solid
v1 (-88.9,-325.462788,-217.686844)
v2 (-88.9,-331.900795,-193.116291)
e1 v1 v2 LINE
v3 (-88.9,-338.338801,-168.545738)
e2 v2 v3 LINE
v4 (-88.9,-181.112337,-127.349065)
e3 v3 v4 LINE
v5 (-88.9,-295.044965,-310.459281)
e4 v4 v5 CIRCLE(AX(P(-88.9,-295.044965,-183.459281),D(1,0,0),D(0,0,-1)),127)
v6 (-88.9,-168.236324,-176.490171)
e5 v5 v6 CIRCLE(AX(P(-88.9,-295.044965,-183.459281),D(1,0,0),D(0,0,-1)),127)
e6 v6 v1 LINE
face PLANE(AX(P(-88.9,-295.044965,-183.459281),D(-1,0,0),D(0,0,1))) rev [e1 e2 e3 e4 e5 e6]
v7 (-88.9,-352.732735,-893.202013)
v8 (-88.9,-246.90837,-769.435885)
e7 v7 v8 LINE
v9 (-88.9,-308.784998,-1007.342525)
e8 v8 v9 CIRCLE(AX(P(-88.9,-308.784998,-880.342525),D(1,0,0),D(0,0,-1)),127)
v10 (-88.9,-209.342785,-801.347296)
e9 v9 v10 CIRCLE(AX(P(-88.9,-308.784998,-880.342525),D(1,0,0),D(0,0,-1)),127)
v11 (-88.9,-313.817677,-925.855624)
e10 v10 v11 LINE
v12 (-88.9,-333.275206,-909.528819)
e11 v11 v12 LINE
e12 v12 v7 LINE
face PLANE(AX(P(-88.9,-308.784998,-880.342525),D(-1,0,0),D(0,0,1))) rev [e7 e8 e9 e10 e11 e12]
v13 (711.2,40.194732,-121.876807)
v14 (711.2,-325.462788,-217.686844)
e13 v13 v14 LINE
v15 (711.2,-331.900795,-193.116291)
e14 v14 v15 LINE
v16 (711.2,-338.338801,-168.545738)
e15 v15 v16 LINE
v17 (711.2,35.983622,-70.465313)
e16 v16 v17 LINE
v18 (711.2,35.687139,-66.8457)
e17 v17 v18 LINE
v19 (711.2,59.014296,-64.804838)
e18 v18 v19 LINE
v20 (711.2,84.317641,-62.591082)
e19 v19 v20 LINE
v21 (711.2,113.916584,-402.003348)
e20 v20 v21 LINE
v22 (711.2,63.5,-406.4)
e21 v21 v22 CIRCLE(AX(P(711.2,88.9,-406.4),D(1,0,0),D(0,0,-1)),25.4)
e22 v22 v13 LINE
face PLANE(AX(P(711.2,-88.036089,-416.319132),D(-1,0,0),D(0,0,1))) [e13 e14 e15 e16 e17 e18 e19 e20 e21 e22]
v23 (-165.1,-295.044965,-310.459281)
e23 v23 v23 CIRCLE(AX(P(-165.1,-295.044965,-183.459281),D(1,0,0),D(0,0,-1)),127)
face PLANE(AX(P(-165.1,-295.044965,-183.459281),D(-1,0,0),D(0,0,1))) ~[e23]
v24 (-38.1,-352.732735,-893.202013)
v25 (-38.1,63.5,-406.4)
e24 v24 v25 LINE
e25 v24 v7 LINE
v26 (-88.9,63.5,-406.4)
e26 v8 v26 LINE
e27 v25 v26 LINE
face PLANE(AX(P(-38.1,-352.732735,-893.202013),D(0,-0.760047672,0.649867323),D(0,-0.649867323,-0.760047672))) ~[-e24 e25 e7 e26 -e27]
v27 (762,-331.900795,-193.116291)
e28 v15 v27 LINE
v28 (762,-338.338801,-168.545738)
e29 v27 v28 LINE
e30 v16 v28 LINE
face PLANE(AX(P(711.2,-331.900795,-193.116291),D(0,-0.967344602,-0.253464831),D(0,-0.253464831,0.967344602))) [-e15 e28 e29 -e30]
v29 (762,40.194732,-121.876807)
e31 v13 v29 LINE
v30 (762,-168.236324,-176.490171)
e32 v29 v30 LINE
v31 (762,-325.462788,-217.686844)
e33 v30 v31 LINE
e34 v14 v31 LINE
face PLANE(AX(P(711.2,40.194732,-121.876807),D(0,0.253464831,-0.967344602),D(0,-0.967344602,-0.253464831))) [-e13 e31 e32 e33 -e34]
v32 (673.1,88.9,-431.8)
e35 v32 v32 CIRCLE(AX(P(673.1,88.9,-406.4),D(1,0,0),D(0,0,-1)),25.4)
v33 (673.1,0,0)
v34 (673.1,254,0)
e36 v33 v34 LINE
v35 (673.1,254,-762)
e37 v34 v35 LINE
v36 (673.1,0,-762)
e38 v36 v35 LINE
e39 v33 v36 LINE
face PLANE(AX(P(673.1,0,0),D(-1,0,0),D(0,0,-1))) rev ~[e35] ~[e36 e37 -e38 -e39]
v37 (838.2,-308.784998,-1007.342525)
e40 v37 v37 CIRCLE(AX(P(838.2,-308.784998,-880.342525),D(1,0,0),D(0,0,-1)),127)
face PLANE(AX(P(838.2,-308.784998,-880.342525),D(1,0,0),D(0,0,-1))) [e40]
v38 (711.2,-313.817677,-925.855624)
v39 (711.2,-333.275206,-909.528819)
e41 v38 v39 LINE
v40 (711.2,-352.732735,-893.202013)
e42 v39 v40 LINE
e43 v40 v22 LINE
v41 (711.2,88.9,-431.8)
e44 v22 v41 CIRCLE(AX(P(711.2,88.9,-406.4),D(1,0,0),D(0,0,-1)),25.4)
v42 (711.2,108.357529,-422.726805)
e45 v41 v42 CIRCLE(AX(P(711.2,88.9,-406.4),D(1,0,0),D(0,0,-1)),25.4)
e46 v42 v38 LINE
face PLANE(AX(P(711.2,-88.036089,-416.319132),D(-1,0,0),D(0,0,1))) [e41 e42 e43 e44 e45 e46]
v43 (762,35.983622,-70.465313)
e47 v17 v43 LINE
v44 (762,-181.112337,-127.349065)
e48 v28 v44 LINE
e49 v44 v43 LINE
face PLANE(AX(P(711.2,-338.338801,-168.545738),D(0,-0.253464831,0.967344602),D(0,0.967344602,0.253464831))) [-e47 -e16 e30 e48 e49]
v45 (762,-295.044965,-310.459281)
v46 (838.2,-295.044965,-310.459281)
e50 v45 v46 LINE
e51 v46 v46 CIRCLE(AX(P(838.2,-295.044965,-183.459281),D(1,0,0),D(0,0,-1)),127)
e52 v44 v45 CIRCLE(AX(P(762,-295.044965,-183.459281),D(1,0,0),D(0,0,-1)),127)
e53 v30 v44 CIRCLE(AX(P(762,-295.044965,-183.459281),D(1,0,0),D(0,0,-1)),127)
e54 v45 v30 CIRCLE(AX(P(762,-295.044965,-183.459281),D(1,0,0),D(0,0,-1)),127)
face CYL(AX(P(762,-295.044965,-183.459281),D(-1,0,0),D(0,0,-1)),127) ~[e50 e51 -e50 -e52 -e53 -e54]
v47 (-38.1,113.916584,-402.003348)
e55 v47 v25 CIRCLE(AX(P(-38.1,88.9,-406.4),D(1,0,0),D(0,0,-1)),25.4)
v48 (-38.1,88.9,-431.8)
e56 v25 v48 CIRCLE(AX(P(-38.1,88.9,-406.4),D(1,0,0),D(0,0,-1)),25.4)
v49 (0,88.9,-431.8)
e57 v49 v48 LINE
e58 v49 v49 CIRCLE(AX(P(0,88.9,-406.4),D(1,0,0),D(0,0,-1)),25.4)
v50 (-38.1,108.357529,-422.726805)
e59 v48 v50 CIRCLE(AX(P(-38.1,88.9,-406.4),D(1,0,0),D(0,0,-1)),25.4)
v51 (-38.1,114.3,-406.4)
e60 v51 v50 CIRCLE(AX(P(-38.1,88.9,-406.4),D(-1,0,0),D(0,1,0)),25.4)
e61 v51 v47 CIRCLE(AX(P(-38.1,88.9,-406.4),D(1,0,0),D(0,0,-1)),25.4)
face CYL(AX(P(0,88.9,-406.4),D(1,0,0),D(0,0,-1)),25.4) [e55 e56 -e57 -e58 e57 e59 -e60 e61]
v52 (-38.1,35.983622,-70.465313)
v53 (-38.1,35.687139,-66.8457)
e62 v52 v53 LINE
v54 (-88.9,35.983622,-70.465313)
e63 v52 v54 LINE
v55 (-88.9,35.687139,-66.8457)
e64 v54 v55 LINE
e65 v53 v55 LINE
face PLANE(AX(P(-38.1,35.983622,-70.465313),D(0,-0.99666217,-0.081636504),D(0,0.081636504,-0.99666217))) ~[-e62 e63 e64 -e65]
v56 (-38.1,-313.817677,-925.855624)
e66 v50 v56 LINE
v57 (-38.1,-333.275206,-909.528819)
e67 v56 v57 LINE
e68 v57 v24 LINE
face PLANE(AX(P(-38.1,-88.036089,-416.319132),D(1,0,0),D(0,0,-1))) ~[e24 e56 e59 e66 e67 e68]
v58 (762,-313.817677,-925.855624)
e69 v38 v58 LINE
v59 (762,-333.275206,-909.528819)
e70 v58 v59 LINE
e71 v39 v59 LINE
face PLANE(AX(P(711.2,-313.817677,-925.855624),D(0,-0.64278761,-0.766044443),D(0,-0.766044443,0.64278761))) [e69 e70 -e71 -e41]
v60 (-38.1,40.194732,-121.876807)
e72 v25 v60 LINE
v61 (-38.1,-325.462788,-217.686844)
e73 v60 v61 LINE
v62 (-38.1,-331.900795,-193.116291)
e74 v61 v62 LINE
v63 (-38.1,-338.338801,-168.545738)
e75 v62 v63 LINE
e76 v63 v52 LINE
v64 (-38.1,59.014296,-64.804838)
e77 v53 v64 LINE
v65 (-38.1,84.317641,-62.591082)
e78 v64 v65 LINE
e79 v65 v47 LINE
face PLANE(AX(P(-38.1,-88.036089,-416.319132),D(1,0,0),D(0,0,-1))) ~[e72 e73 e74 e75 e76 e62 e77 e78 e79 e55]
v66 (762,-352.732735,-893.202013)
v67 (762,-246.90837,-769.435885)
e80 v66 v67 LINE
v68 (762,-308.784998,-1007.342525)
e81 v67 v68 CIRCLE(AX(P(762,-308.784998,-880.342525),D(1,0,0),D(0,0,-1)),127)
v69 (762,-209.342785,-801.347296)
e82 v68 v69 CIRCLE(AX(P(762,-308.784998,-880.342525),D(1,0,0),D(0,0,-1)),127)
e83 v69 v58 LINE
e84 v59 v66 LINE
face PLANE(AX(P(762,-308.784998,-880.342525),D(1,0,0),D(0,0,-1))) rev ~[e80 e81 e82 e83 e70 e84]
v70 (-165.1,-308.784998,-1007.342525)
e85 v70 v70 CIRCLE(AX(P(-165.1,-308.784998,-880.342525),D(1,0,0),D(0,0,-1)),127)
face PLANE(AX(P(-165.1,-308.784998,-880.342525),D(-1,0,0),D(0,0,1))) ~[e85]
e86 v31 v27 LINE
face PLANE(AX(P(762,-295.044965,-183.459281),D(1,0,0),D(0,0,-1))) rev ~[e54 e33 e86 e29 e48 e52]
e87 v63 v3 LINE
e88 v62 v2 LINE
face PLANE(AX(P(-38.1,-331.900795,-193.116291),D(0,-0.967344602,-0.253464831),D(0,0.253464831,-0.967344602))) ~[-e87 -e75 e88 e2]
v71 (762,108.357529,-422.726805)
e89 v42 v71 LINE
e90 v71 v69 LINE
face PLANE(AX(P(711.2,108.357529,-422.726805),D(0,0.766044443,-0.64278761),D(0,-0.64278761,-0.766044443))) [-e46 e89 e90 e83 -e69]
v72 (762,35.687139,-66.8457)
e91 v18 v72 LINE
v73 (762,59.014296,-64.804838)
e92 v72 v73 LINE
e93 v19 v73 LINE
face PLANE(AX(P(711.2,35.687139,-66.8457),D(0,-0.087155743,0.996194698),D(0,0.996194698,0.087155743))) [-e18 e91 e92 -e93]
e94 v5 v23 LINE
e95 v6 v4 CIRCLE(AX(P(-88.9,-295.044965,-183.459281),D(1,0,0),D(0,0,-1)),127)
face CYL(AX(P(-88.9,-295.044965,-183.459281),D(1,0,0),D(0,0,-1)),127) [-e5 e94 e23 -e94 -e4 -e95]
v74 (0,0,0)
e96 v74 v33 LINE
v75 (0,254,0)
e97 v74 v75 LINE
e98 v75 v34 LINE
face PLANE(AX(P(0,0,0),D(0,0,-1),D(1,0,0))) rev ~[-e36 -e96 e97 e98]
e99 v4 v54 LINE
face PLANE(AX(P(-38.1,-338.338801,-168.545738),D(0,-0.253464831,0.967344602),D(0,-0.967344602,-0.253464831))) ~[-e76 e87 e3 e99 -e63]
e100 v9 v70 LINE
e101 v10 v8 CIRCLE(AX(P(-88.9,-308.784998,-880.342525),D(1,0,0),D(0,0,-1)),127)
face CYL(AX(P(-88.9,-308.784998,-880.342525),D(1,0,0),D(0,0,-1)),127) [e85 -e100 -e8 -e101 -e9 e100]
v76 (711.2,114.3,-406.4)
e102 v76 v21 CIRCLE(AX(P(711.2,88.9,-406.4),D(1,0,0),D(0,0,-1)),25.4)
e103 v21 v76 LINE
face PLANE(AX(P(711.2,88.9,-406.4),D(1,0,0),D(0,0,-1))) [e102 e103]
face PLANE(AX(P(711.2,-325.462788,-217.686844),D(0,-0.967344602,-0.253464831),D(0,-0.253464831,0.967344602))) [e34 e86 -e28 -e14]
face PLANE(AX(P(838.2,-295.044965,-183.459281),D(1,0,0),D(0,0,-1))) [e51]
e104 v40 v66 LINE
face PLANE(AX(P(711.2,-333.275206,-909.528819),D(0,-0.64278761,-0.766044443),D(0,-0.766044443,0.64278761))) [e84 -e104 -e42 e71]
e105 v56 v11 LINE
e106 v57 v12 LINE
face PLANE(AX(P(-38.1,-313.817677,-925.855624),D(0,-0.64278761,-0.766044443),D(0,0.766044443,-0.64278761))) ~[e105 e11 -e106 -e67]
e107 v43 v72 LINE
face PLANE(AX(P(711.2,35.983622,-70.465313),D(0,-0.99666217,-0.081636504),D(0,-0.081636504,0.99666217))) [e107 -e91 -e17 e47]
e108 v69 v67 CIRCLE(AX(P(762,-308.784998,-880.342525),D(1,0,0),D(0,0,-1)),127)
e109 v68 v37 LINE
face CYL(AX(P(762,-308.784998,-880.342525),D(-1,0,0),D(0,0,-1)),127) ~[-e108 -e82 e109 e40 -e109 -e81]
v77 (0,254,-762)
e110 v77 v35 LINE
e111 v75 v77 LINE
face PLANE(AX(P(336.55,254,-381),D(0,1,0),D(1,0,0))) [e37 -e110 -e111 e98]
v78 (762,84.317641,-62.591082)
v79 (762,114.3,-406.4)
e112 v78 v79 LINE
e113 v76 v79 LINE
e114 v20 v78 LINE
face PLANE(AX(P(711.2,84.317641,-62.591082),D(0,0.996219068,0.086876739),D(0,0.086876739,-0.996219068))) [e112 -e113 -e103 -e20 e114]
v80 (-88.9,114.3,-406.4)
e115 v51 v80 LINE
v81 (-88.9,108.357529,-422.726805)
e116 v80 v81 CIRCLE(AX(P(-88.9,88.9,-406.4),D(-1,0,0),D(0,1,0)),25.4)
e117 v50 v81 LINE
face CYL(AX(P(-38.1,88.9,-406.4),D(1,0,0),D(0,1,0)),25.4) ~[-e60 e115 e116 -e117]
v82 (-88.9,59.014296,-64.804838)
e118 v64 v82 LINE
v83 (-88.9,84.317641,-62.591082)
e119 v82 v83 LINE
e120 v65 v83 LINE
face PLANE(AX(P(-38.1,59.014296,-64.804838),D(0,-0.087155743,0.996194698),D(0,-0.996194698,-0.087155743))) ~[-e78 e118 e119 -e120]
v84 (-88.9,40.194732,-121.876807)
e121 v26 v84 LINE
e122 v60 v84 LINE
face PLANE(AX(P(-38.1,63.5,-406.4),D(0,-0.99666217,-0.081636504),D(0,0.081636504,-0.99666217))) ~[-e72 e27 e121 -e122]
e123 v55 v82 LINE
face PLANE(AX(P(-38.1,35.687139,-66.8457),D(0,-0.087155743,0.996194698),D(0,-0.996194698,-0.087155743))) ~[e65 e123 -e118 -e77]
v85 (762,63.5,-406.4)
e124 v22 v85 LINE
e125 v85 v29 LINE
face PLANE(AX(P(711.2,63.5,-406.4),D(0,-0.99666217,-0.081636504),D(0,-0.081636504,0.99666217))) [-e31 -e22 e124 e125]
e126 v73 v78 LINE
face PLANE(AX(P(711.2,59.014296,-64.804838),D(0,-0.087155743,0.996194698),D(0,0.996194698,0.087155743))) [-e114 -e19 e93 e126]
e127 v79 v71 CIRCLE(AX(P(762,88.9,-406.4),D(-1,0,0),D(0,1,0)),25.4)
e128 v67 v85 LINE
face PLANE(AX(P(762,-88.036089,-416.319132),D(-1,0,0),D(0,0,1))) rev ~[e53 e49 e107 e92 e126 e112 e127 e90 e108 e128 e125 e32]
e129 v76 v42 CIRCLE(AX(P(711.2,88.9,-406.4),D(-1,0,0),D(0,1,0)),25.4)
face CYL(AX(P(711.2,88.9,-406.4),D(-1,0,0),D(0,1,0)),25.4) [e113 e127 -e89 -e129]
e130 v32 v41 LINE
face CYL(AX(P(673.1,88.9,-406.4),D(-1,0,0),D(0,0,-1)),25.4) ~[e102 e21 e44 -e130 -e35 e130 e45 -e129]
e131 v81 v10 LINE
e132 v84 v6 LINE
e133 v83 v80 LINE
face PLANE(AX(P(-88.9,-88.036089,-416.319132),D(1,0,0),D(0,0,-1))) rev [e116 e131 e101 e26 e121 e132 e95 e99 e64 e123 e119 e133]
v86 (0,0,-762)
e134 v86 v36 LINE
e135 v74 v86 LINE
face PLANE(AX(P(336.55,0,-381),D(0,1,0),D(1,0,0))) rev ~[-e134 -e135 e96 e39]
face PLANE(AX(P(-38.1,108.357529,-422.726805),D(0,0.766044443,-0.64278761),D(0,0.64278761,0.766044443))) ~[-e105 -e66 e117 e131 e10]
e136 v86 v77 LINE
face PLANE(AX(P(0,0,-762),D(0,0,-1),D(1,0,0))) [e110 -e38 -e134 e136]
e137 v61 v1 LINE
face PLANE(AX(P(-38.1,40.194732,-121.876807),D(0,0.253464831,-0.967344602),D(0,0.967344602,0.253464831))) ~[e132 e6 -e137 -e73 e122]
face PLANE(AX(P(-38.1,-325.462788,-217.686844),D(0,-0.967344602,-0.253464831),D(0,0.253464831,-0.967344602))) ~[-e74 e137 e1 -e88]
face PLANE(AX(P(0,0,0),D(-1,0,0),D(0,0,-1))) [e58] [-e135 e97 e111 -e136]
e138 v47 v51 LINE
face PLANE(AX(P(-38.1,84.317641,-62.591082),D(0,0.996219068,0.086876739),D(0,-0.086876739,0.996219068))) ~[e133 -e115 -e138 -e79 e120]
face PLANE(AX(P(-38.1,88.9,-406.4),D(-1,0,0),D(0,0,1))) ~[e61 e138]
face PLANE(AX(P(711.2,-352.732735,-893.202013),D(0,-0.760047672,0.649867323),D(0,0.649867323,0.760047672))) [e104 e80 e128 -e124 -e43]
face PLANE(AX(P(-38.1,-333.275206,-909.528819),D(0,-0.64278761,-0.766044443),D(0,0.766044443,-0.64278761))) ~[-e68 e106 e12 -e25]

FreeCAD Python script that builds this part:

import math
import FreeCAD as App
import Part
import Sketcher
from FreeCAD import Vector
Q = App.Units.Quantity


def add_polygon(sketch, points):
    """Adds a closed chain of lines whose ends are joined by coincident constraints."""
    first, n = sketch.GeometryCount, len(points)
    for a, b in zip(points, points[1:] + points[:1]):
        sketch.addGeometry(Part.LineSegment(App.Vector(*a, 0), App.Vector(*b, 0)), False)
    for i in range(n):
        sketch.addConstraint(Sketcher.Constraint("Coincident", first + i, 2, first + (i + 1) % n, 1))

doc = App.newDocument("Part")
body = doc.addObject("PartDesign::Body", "Body")

# Sketch on XZ plane
sketch1 = body.newObject("Sketcher::SketchObject", "Sketch")
sketch1.AttachmentSupport = (doc.getObject("XZ_Plane"), [""])
sketch1.MapMode = "FlatFace"
add_polygon(sketch1, [(0, -762), (0, 0), (673, 0), (673, -762)])  # lines 0-3
sketch1.addConstraint(Sketcher.Constraint("Vertical", 0))
sketch1.addConstraint(Sketcher.Constraint("Horizontal", 1))
sketch1.addConstraint(Sketcher.Constraint("Vertical", 2))
sketch1.addConstraint(Sketcher.Constraint("Horizontal", 3))
sketch1.addConstraint(Sketcher.Constraint("Coincident", 0, 2, -1, 1))
sketch1.addConstraint(Sketcher.Constraint("DistanceY", 0, 1, 0, 2, Q("30 in")))
sketch1.addConstraint(Sketcher.Constraint("DistanceX", 1, 1, 1, 2, Q("26.5 in")))
pad1 = body.newObject("PartDesign::Pad", "Pad")
pad1.Profile = sketch1
pad1.Length = Q("10 in")
pad1.Reversed = True

# Sketch on YZ plane
sketch2 = body.newObject("Sketcher::SketchObject", "Sketch001")
sketch2.AttachmentSupport = (doc.getObject("YZ_Plane"), [""])
sketch2.MapMode = "FlatFace"
sketch2.AttachmentOffset = App.Placement(Vector(0, 0, 26.5 * 25.4), App.Rotation())
sketch2.addGeometry(Part.Circle(Vector(89, -406, 0), Vector(0, 0, 1), 25), False)
sketch2.addConstraint(Sketcher.Constraint("Diameter", 0, Q("2 in")))
sketch2.addConstraint(Sketcher.Constraint("DistanceY", 0, 3, -1, 1, Q("16 in")))
sketch2.addConstraint(Sketcher.Constraint("DistanceX", -1, 1, 0, 3, Q("3.5 in")))
pad2 = body.newObject("PartDesign::Pad", "Pad001")
pad2.Profile = sketch2
pad2.Length = Q("1.5 in")

# Sketch on YZ plane
sketch3 = body.newObject("Sketcher::SketchObject", "Sketch002")
sketch3.AttachmentSupport = (doc.getObject("YZ_Plane"), [""])
sketch3.MapMode = "FlatFace"
sketch3.AttachmentOffset = App.Placement(Vector(0, 0, 28 * 25.4), App.Rotation())
sketch3.addGeometry(Part.LineSegment(Vector(-313.817677, -925.855624, 0), Vector(108.357529, -422.726805, 0)), False)
sketch3.addGeometry(Part.ArcOfCircle(Part.Circle(Vector(88.9, -406.4, 0), Vector(0, 0, 1), 25.4), math.radians(-40), math.radians(0)), False)
sketch3.addGeometry(Part.LineSegment(Vector(114.3, -406.4, 0), Vector(84.317641, -62.591082, 0)), False)
sketch3.addGeometry(Part.LineSegment(Vector(84.317641, -62.591082, 0), Vector(59.014296, -64.804838, 0)), False)
sketch3.addGeometry(Part.LineSegment(Vector(59.014296, -64.804838, 0), Vector(35.687139, -66.8457, 0)), False)
sketch3.addGeometry(Part.LineSegment(Vector(35.687139, -66.8457, 0), Vector(35.983622, -70.465313, 0)), False)
sketch3.addGeometry(Part.LineSegment(Vector(35.983622, -70.465313, 0), Vector(-338.338801, -168.545738, 0)), False)
sketch3.addGeometry(Part.LineSegment(Vector(-338.338801, -168.545738, 0), Vector(-331.900795, -193.116291, 0)), False)
sketch3.addGeometry(Part.LineSegment(Vector(-331.900795, -193.116291, 0), Vector(-325.462788, -217.686844, 0)), False)
sketch3.addGeometry(Part.LineSegment(Vector(-325.462788, -217.686844, 0), Vector(40.194732, -121.876807, 0)), False)
sketch3.addGeometry(Part.LineSegment(Vector(40.194732, -121.876807, 0), Vector(63.5, -406.4, 0)), False)
sketch3.addGeometry(Part.LineSegment(Vector(63.5, -406.4, 0), Vector(-352.732735, -893.202013, 0)), False)
sketch3.addGeometry(Part.LineSegment(Vector(-352.732735, -893.202013, 0), Vector(-333.275206, -909.528819, 0)), False)
sketch3.addGeometry(Part.LineSegment(Vector(-333.275206, -909.528819, 0), Vector(-313.817677, -925.855624, 0)), False)
sketch3.addConstraint(Sketcher.Constraint("Coincident", 0, 2, 1, 1))
sketch3.addConstraint(Sketcher.Constraint("Coincident", 1, 2, 2, 1))
sketch3.addConstraint(Sketcher.Constraint("Coincident", 2, 2, 3, 1))
sketch3.addConstraint(Sketcher.Constraint("Coincident", 3, 2, 4, 1))
sketch3.addConstraint(Sketcher.Constraint("Coincident", 4, 2, 5, 1))
sketch3.addConstraint(Sketcher.Constraint("Coincident", 5, 2, 6, 1))
sketch3.addConstraint(Sketcher.Constraint("Coincident", 6, 2, 7, 1))
sketch3.addConstraint(Sketcher.Constraint("Coincident", 7, 2, 8, 1))
sketch3.addConstraint(Sketcher.Constraint("Coincident", 8, 2, 9, 1))
sketch3.addConstraint(Sketcher.Constraint("Coincident", 9, 2, 10, 1))
sketch3.addConstraint(Sketcher.Constraint("Coincident", 10, 2, 11, 1))
sketch3.addConstraint(Sketcher.Constraint("Coincident", 11, 2, 12, 1))
sketch3.addConstraint(Sketcher.Constraint("Coincident", 12, 2, 13, 1))
sketch3.addConstraint(Sketcher.Constraint("Coincident", 13, 2, 0, 1))
sketch3.addConstraint(Sketcher.Constraint("Radius", 1, Q("1 in")))
sketch3.addConstraint(Sketcher.Constraint("Distance", 3, Q("1 in")))
sketch3.addConstraint(Sketcher.Constraint("Distance", 7, Q("1 in")))
sketch3.addConstraint(Sketcher.Constraint("Distance", 8, Q("1 in")))
sketch3.addConstraint(Sketcher.Constraint("Distance", 12, Q("1 in")))
sketch3.addConstraint(Sketcher.Constraint("Distance", 13, Q("1 in")))
sketch3.addConstraint(Sketcher.Constraint("DistanceY", 1, 3, -1, 1, Q("16 in")))
sketch3.addConstraint(Sketcher.Constraint("DistanceY", 1, 2, -1, 1, Q("16 in")))
sketch3.addConstraint(Sketcher.Constraint("DistanceY", 10, 2, -1, 1, Q("16 in")))
sketch3.addConstraint(Sketcher.Constraint("DistanceX", 10, 2, 1, 3, Q("1 in")))
sketch3.addConstraint(Sketcher.Constraint("DistanceX", -1, 1, 1, 3, Q("3.5 in")))
sketch3.addConstraint(Sketcher.Constraint("Distance", 4, Q("0.9219001 in")))
sketch3.addConstraint(Sketcher.Constraint("DistanceY", 4, 2, -1, 1, Q("66.8457 mm")))
sketch3.addConstraint(Sketcher.Constraint("DistanceX", 6, 2, -1, 1, Q("338.338801 mm")))
sketch3.addConstraint(Sketcher.Constraint("DistanceX", 4, 2, 2, 2, Q("48.630502 mm")))
sketch3.addConstraint(Sketcher.Constraint("DistanceY", 6, 2, 3, 2, Q("103.7409 mm")))
sketch3.addConstraint(Sketcher.Constraint("Distance", 2, Q("345.113769 mm")))
sketch3.addConstraint(Sketcher.Constraint("Distance", 11, Q("640.48879 mm")))
sketch3.addConstraint(Sketcher.Constraint("DistanceX", -1, 1, 0, 2, Q("108.357529 mm")))
sketch3.addConstraint(Sketcher.Constraint("DistanceY", 3, 2, -1, 1, Q("64.804838 mm")))
sketch3.addConstraint(Sketcher.Constraint("DistanceX", -1, 1, 5, 2, Q("35.983622 mm")))
sketch3.addConstraint(Sketcher.Constraint("DistanceY", 7, 2, -1, 1, Q("193.116291 mm")))
sketch3.addConstraint(Sketcher.Constraint("DistanceY", 12, 2, -1, 1, Q("909.528819 mm")))
sketch3.addConstraint(Sketcher.Constraint("DistanceY", 5, 2, 2, 2, Q("7.874231 mm")))
sketch3.addConstraint(Sketcher.Constraint("DistanceX", 8, 2, 5, 2, Q("361.44641 mm")))
sketch3.addConstraint(Sketcher.Constraint("DistanceX", 5, 2, 9, 2, Q("4.211111 mm")))
sketch3.addConstraint(Sketcher.Constraint("DistanceY", 9, 2, 3, 2, Q("57.071969 mm")))
sketch3.addConstraint(Sketcher.Constraint("DistanceY", 11, 2, 0, 2, Q("470.475208 mm")))
sketch3.addConstraint(Sketcher.Constraint("DistanceX", 12, 2, 13, 2, Q("19.457529 mm")))
pad3 = body.newObject("PartDesign::Pad", "Pad002")
pad3.Profile = sketch3
pad3.Length = Q("2 in")

# Sketch on YZ plane
sketch4 = body.newObject("Sketcher::SketchObject", "Sketch003")
sketch4.AttachmentSupport = (doc.getObject("YZ_Plane"), [""])
sketch4.MapMode = "FlatFace"
sketch4.AttachmentOffset = App.Placement(Vector(0, 0, 30 * 25.4), App.Rotation())
sketch4.addGeometry(Part.Circle(Vector(-295, -183, 0), Vector(0, 0, 1), 127), False)
sketch4.addGeometry(Part.Circle(Vector(-309, -880, 0), Vector(0, 0, 1), 127), False)
sketch4.addConstraint(Sketcher.Constraint("Equal", 0, 1))
sketch4.addConstraint(Sketcher.Constraint("Diameter", 0, Q("10 in")))
sketch4.addConstraint(Sketcher.Constraint("DistanceX", 1, 3, -1, 1, Q("308.784998 mm")))
sketch4.addConstraint(Sketcher.Constraint("DistanceY", 0, 3, -1, 1, Q("183.459281 mm")))
sketch4.addConstraint(Sketcher.Constraint("DistanceX", 0, 3, -1, 1, Q("295.044965 mm")))
sketch4.addConstraint(Sketcher.Constraint("DistanceY", 1, 3, -1, 1, Q("880.342525 mm")))
pad4 = body.newObject("PartDesign::Pad", "Pad003")
pad4.Profile = sketch4
pad4.Length = Q("3 in")
doc.recompute()

datumplane = body.newObject("PartDesign::Plane", "DatumPlane")
datumplane.AttachmentSupport = (doc.getObject("YZ_Plane"), [""])
datumplane.MapMode = "FlatFace"
datumplane.AttachmentOffset = App.Placement(Vector(0, 0, 13.25 * 25.4), App.Rotation())
mirrored = body.newObject("PartDesign::Mirrored", "Mirrored")
mirrored.Originals = [pad2, pad3, pad4]
mirrored.MirrorPlane = (datumplane, [""])
body.Tip = mirrored

doc.recompute()
